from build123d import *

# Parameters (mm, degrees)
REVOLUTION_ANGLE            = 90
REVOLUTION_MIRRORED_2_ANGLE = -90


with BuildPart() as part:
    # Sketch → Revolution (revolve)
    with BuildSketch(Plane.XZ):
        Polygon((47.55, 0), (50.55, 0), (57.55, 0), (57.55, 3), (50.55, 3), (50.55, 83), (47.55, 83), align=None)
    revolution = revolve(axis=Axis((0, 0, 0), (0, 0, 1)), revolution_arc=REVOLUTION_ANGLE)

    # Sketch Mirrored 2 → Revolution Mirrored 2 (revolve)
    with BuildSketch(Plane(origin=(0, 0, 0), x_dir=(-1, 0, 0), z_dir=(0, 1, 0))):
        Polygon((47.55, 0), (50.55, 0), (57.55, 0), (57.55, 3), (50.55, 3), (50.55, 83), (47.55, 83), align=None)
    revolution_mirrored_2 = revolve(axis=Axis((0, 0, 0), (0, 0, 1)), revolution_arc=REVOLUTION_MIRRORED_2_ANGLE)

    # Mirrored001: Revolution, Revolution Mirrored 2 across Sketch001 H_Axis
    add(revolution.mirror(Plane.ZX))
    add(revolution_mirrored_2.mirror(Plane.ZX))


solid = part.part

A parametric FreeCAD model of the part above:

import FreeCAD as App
import Part
import Sketcher

V = App.Vector
Q = App.Units.Quantity


def add_polygon(sketch, points):
    """Adds a closed chain of lines whose ends are joined by coincident constraints."""
    first, n = sketch.GeometryCount, len(points)
    for a, b in zip(points, points[1:] + points[:1]):
        sketch.addGeometry(Part.LineSegment(App.Vector(*a, 0), App.Vector(*b, 0)), False)
    for i in range(n):
        sketch.addConstraint(Sketcher.Constraint("Coincident", first + i, 2, first + (i + 1) % n, 1))

doc = App.newDocument("Part")
body = doc.addObject("PartDesign::Body", "Body")

sketch1 = body.newObject("Sketcher::SketchObject", "Sketch")
sketch1.AttachmentSupport = (doc.getObject("XZ_Plane"), [""])
sketch1.MapMode = "FlatFace"
add_polygon(sketch1, [(47.5, 0), (57.5, 0), (57.5, 3), (50.5, 3), (50.5, 83), (47.5, 83)])
sketch1.addConstraint([
    Sketcher.Constraint("Horizontal", 0),
    Sketcher.Constraint("Vertical", 1),
    Sketcher.Constraint("Horizontal", 2),
    Sketcher.Constraint("Vertical", 3),
    Sketcher.Constraint("Horizontal", 4),
    Sketcher.Constraint("Vertical", 5),
    Sketcher.Constraint("PointOnObject", 0, 2, -1),
    Sketcher.Constraint("Equal", 4, 1),
    Sketcher.Constraint("DistanceX", 0, 1, 0, 2, Q("10 mm")),
    Sketcher.Constraint("DistanceX", 2, 2, 2, 1, Q("7 mm")),
    Sketcher.Constraint("DistanceY", 3, 1, 3, 2, Q("80 mm")),
    Sketcher.Constraint("DistanceX", -1, 1, 0, 2, Q("57.55 mm")),
])
revolution = body.newObject("PartDesign::Revolution", "Revolution")
revolution.Profile = sketch1
revolution.ReferenceAxis = (sketch1, ["V_Axis"])
revolution.Angle = 90

sketch2 = body.newObject("Sketcher::SketchObject", "Sketch001")
sketch2.AttachmentSupport = (doc.getObject("XZ_Plane"), [""])
sketch2.MapMode = "FlatFace"
add_polygon(sketch2, [(-47.5, 0), (-57.5, 0), (-57.5, 3), (-50.5, 3), (-50.5, 83), (-47.5, 83)])
sketch2.addConstraint([
    Sketcher.Constraint("Horizontal", 0),
    Sketcher.Constraint("Vertical", 1),
    Sketcher.Constraint("Horizontal", 2),
    Sketcher.Constraint("Vertical", 3),
    Sketcher.Constraint("Horizontal", 4),
    Sketcher.Constraint("Vertical", 5),
    Sketcher.Constraint("PointOnObject", 0, 2, -1),
    Sketcher.Constraint("Equal", 4, 1),
    Sketcher.Constraint("DistanceX", 0, 2, 0, 1, Q("10 mm")),
    Sketcher.Constraint("DistanceX", 2, 1, 2, 2, Q("7 mm")),
    Sketcher.Constraint("DistanceY", 3, 1, 3, 2, Q("80 mm")),
    Sketcher.Constraint("DistanceX", 0, 2, -1, 1, Q("57.55 mm")),
])
revolution2 = body.newObject("PartDesign::Revolution", "Revolution001")
revolution2.Profile = sketch2
revolution2.ReferenceAxis = (sketch2, ["V_Axis"])
revolution2.Angle = 90
revolution2.Reversed = True
doc.recompute()

mirrored = body.newObject("PartDesign::Mirrored", "Mirrored")
mirrored.Originals = [revolution, revolution2]
mirrored.MirrorPlane = (doc.getObject("XZ_Plane"), [""])
body.Tip = mirrored

doc.recompute()
